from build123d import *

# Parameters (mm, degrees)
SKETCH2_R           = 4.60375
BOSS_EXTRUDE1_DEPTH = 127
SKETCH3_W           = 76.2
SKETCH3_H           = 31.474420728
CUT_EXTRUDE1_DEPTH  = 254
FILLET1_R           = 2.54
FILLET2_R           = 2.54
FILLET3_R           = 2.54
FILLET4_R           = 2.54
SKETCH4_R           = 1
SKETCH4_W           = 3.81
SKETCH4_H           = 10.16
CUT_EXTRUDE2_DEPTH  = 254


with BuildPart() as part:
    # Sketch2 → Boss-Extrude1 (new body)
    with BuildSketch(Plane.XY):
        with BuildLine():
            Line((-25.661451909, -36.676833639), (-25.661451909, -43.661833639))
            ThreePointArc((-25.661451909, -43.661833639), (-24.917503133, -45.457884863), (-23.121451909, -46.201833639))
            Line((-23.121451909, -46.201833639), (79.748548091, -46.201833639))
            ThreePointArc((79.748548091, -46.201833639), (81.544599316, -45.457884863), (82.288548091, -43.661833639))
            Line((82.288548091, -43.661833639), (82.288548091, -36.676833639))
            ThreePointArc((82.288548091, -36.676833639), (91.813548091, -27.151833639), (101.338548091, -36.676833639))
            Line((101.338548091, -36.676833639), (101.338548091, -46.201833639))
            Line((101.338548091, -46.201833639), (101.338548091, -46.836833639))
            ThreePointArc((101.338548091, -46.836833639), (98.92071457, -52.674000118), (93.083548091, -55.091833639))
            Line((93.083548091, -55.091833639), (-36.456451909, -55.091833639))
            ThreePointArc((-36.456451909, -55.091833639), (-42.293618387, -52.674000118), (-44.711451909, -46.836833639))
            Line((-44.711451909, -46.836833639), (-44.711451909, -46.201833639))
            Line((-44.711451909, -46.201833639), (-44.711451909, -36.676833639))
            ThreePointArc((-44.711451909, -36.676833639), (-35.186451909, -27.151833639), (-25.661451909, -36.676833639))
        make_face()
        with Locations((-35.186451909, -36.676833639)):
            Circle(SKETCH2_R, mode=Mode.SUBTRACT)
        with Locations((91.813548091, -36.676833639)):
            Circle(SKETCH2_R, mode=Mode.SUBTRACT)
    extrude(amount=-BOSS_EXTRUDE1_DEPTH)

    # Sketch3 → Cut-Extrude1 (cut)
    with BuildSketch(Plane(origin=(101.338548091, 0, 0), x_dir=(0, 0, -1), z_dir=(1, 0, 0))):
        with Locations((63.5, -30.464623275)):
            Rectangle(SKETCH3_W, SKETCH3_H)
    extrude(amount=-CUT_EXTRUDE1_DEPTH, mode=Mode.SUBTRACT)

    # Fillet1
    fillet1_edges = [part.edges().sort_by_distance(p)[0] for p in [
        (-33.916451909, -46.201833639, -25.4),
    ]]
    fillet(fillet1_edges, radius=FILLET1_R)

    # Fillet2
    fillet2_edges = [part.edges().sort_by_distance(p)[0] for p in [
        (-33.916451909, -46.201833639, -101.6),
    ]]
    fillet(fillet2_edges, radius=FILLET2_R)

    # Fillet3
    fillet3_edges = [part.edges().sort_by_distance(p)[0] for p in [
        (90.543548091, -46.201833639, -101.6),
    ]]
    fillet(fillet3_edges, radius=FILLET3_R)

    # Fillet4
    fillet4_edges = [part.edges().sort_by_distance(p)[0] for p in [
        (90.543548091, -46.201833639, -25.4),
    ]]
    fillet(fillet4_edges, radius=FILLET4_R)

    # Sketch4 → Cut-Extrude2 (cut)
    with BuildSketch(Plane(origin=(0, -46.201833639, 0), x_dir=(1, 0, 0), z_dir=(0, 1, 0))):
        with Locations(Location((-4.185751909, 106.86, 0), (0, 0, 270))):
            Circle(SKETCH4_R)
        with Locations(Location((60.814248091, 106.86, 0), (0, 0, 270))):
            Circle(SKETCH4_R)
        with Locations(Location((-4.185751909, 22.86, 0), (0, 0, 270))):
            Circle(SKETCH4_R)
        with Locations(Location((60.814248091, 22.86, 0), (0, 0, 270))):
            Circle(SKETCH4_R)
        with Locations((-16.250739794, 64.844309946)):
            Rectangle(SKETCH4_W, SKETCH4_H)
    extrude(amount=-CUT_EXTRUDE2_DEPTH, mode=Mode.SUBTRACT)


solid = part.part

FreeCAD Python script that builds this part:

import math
import FreeCAD as App
import Part
import Sketcher

V = App.Vector
Q = App.Units.Quantity


def edges_at(feature, points):
    """Names of the edges that pass closest to the given points."""
    edges = feature.Shape.Edges
    near = lambda p: min(range(len(edges)), key=lambda i: edges[i].distToShape(Part.Vertex(*p))[0])
    return sorted({f"Edge{near(p) + 1}" for p in points})

doc = App.newDocument("Part")
body = doc.addObject("PartDesign::Body", "Body")

# Sketch on XY plane
sketch1 = body.newObject("Sketcher::SketchObject", "Sketch")
sketch1.AttachmentSupport = (doc.getObject("XY_Plane"), [""])
sketch1.MapMode = "FlatFace"
sketch1.addGeometry([
    Part.LineSegment(V(-25.7, -43.7, 0), V(-25.7, -36.7, 0)),  # 0
    Part.ArcOfCircle(Part.Circle(V(-35.2, -36.7, 0), V(0, 0, 1), 9.5), math.radians(0), math.radians(180)),  # 1
    Part.LineSegment(V(-44.7, -36.7, 0), V(-44.7, -46.8, 0)),  # 2
    Part.ArcOfCircle(Part.Circle(V(-36.5, -46.8, 0), V(0, 0, 1), 8.3), math.radians(-180), math.radians(-90)),  # 3
    Part.LineSegment(V(-36.5, -55.1, 0), V(93.1, -55.1, 0)),  # 4
    Part.ArcOfCircle(Part.Circle(V(93.1, -46.8, 0), V(0, 0, 1), 8.3), math.radians(-90), math.radians(0)),  # 5
    Part.LineSegment(V(101.3, -46.8, 0), V(101.3, -36.7, 0)),  # 6
    Part.ArcOfCircle(Part.Circle(V(91.8, -36.7, 0), V(0, 0, 1), 9.5), math.radians(0), math.radians(180)),  # 7
    Part.LineSegment(V(82.3, -36.7, 0), V(82.3, -43.7, 0)),  # 8
    Part.ArcOfCircle(Part.Circle(V(79.7, -43.7, 0), V(0, 0, 1), 2.5), math.radians(-90), math.radians(0)),  # 9
    Part.LineSegment(V(79.7, -46.2, 0), V(-23.1, -46.2, 0)),  # 10
    Part.ArcOfCircle(Part.Circle(V(-23.1, -43.7, 0), V(0, 0, 1), 2.5), math.radians(-180), math.radians(-90)),  # 11
    Part.Circle(V(91.8, -36.7, 0), V(0, 0, 1), 4.6),  # 12
    Part.Circle(V(-35.2, -36.7, 0), V(0, 0, 1), 4.6),  # 13
], False)
sketch1.addConstraint([
    Sketcher.Constraint("Tangent", 0, 2, 1, 1),
    Sketcher.Constraint("Tangent", 1, 2, 2, 1),
    Sketcher.Constraint("Tangent", 2, 2, 3, 1),
    Sketcher.Constraint("Tangent", 3, 2, 4, 1),
    Sketcher.Constraint("Tangent", 4, 2, 5, 1),
    Sketcher.Constraint("Tangent", 5, 2, 6, 1),
    Sketcher.Constraint("Tangent", 6, 2, 7, 1),
    Sketcher.Constraint("Tangent", 7, 2, 8, 1),
    Sketcher.Constraint("Tangent", 8, 2, 9, 2),
    Sketcher.Constraint("Tangent", 9, 1, 10, 1),
    Sketcher.Constraint("Tangent", 10, 2, 11, 2),
    Sketcher.Constraint("Tangent", 11, 1, 0, 1),
    Sketcher.Constraint("Vertical", 0),
    Sketcher.Constraint("Vertical", 2),
    Sketcher.Constraint("Horizontal", 4),
    Sketcher.Constraint("Vertical", 6),
    Sketcher.Constraint("Vertical", 8),
    Sketcher.Constraint("Horizontal", 10),
    Sketcher.Constraint("Coincident", 12, 3, 7, 3),
    Sketcher.Constraint("Coincident", 13, 3, 1, 3),
    Sketcher.Constraint("Equal", 3, 5),
    Sketcher.Constraint("Equal", 1, 7),
    Sketcher.Constraint("Equal", 9, 11),
    Sketcher.Constraint("Equal", 12, 13),
    Sketcher.Constraint("Horizontal", 1, 3, 7, 3),
    Sketcher.Constraint("Radius", 9, Q("0.1 in")),
    Sketcher.Constraint("DistanceX", 4, 1, 4, 2, Q("5.1 in")),
    Sketcher.Constraint("DistanceY", 2, 2, 2, 1, Q("0.4 in")),
    Sketcher.Constraint("Radius", 1, Q("0.375 in")),
    Sketcher.Constraint("Radius", 3, Q("0.325 in")),
    Sketcher.Constraint("Diameter", 12, Q("0.3625 in")),
    Sketcher.Constraint("DistanceY", 0, 1, 0, 2, Q("0.275 in")),
    Sketcher.Constraint("DistanceX", 1, 3, -1, 1, Q("35.186452 mm")),
    Sketcher.Constraint("DistanceY", 1, 3, -1, 1, Q("36.676834 mm")),
])
pad1 = body.newObject("PartDesign::Pad", "Pad")
pad1.Profile = sketch1
pad1.Length = Q("5 in")
pad1.Reversed = True

# Sketch on YZ plane
sketch2 = body.newObject("Sketcher::SketchObject", "Sketch001")
sketch2.AttachmentSupport = (doc.getObject("YZ_Plane"), [""])
sketch2.MapMode = "FlatFace"
sketch2.AttachmentOffset = App.Placement(V(0, 0, 101.338548), App.Rotation())
sketch2.addGeometry([
    Part.LineSegment(V(-15, -25, 0), V(-46, -25, 0)),
    Part.LineSegment(V(-46, -25, 0), V(-46, -102, 0)),
    Part.LineSegment(V(-46, -102, 0), V(-15, -102, 0)),
    Part.LineSegment(V(-15, -102, 0), V(-15, -25, 0)),
], False)
sketch2.addConstraint([
    Sketcher.Constraint("Coincident", 0, 2, 1, 1),
    Sketcher.Constraint("Coincident", 1, 2, 2, 1),
    Sketcher.Constraint("Coincident", 2, 2, 3, 1),
    Sketcher.Constraint("Coincident", 3, 2, 0, 1),
    Sketcher.Constraint("Horizontal", 0),
    Sketcher.Constraint("Vertical", 1),
    Sketcher.Constraint("Horizontal", 2),
    Sketcher.Constraint("Vertical", 3),
    Sketcher.Constraint("DistanceY", 1, 2, 1, 1, Q("3 in")),
    Sketcher.Constraint("DistanceY", 0, 2, -1, 1, Q("1 in")),
    Sketcher.Constraint("DistanceX", 0, 2, 0, 1, Q("31.474421 mm")),
    Sketcher.Constraint("DistanceX", 0, 2, -1, 1, Q("46.201834 mm")),
])
pocket1 = body.newObject("PartDesign::Pocket", "Pocket")
pocket1.Profile = sketch2
pocket1.Length = Q("10 in")
doc.recompute()

fillet = body.newObject("PartDesign::Fillet", "Fillet")
fillet.Base = (pocket1, edges_at(pocket1, [(-33.916, -46.202, -25.4)]))
fillet.Radius = Q("0.1 in")
doc.recompute()

fillet2 = body.newObject("PartDesign::Fillet", "Fillet001")
fillet2.Base = (fillet, edges_at(fillet, [(-33.916, -46.202, -101.6)]))
fillet2.Radius = Q("0.1 in")
doc.recompute()

fillet3 = body.newObject("PartDesign::Fillet", "Fillet002")
fillet3.Base = (fillet2, edges_at(fillet2, [(90.544, -46.202, -101.6)]))
fillet3.Radius = Q("0.1 in")
doc.recompute()

fillet4 = body.newObject("PartDesign::Fillet", "Fillet003")
fillet4.Base = (fillet3, edges_at(fillet3, [(90.544, -46.202, -25.4)]))
fillet4.Radius = Q("0.1 in")

# Sketch on XZ plane
sketch3 = body.newObject("Sketcher::SketchObject", "Sketch002")
sketch3.AttachmentSupport = (doc.getObject("XZ_Plane"), [""])
sketch3.MapMode = "FlatFace"
sketch3.AttachmentOffset = App.Placement(V(0, 0, 46.201834), App.Rotation())
sketch3.addGeometry([
    Part.Circle(V(-4.2, -106.9, 0), V(0, 0, 1), 1),  # 0
    Part.Circle(V(60.8, -106.9, 0), V(0, 0, 1), 1),  # 1
    Part.Circle(V(-4.2, -22.9, 0), V(0, 0, 1), 1),  # 2
    Part.Circle(V(60.8, -22.9, 0), V(0, 0, 1), 1),  # 3
    Part.LineSegment(V(-18.2, -69.9, 0), V(-18.2, -59.8, 0)),  # 4
    Part.LineSegment(V(-18.2, -59.8, 0), V(-14.3, -59.8, 0)),  # 5
    Part.LineSegment(V(-14.3, -59.8, 0), V(-14.3, -69.9, 0)),  # 6
    Part.LineSegment(V(-14.3, -69.9, 0), V(-18.2, -69.9, 0)),  # 7
], False)
sketch3.addConstraint([
    Sketcher.Constraint("Coincident", 4, 2, 5, 1),
    Sketcher.Constraint("Coincident", 5, 2, 6, 1),
    Sketcher.Constraint("Coincident", 6, 2, 7, 1),
    Sketcher.Constraint("Coincident", 7, 2, 4, 1),
    Sketcher.Constraint("Vertical", 4),
    Sketcher.Constraint("Horizontal", 5),
    Sketcher.Constraint("Vertical", 6),
    Sketcher.Constraint("Horizontal", 7),
    Sketcher.Constraint("Equal", 0, 1),
    Sketcher.Constraint("Equal", 1, 2),
    Sketcher.Constraint("Equal", 2, 3),
    Sketcher.Constraint("Horizontal", 0, 3, 1, 3),
    Sketcher.Constraint("Horizontal", 2, 3, 3, 3),
    Sketcher.Constraint("Vertical", 0, 3, 2, 3),
    Sketcher.Constraint("Vertical", 1, 3, 3, 3),
    Sketcher.Constraint("DistanceY", 4, 1, 4, 2, Q("0.4 in")),
    Sketcher.Constraint("DistanceX", 5, 1, 5, 2, Q("0.15 in")),
    Sketcher.Constraint("DistanceY", 2, 3, -1, 1, Q("0.9 in")),
    Sketcher.Constraint("Diameter", 0, Q("2 mm")),
    Sketcher.Constraint("DistanceY", 0, 3, -1, 1, Q("106.86 mm")),
    Sketcher.Constraint("DistanceX", 0, 3, 1, 3, Q("65 mm")),
    Sketcher.Constraint("DistanceX", 0, 3, -1, 1, Q("4.185752 mm")),
    Sketcher.Constraint("DistanceX", 4, 2, -1, 1, Q("18.15574 mm")),
    Sketcher.Constraint("DistanceY", 4, 2, -1, 1, Q("59.76431 mm")),
])
pocket2 = body.newObject("PartDesign::Pocket", "Pocket001")
pocket2.Profile = sketch3
pocket2.Length = Q("10 in")
pocket2.Reversed = True

doc.recompute()
